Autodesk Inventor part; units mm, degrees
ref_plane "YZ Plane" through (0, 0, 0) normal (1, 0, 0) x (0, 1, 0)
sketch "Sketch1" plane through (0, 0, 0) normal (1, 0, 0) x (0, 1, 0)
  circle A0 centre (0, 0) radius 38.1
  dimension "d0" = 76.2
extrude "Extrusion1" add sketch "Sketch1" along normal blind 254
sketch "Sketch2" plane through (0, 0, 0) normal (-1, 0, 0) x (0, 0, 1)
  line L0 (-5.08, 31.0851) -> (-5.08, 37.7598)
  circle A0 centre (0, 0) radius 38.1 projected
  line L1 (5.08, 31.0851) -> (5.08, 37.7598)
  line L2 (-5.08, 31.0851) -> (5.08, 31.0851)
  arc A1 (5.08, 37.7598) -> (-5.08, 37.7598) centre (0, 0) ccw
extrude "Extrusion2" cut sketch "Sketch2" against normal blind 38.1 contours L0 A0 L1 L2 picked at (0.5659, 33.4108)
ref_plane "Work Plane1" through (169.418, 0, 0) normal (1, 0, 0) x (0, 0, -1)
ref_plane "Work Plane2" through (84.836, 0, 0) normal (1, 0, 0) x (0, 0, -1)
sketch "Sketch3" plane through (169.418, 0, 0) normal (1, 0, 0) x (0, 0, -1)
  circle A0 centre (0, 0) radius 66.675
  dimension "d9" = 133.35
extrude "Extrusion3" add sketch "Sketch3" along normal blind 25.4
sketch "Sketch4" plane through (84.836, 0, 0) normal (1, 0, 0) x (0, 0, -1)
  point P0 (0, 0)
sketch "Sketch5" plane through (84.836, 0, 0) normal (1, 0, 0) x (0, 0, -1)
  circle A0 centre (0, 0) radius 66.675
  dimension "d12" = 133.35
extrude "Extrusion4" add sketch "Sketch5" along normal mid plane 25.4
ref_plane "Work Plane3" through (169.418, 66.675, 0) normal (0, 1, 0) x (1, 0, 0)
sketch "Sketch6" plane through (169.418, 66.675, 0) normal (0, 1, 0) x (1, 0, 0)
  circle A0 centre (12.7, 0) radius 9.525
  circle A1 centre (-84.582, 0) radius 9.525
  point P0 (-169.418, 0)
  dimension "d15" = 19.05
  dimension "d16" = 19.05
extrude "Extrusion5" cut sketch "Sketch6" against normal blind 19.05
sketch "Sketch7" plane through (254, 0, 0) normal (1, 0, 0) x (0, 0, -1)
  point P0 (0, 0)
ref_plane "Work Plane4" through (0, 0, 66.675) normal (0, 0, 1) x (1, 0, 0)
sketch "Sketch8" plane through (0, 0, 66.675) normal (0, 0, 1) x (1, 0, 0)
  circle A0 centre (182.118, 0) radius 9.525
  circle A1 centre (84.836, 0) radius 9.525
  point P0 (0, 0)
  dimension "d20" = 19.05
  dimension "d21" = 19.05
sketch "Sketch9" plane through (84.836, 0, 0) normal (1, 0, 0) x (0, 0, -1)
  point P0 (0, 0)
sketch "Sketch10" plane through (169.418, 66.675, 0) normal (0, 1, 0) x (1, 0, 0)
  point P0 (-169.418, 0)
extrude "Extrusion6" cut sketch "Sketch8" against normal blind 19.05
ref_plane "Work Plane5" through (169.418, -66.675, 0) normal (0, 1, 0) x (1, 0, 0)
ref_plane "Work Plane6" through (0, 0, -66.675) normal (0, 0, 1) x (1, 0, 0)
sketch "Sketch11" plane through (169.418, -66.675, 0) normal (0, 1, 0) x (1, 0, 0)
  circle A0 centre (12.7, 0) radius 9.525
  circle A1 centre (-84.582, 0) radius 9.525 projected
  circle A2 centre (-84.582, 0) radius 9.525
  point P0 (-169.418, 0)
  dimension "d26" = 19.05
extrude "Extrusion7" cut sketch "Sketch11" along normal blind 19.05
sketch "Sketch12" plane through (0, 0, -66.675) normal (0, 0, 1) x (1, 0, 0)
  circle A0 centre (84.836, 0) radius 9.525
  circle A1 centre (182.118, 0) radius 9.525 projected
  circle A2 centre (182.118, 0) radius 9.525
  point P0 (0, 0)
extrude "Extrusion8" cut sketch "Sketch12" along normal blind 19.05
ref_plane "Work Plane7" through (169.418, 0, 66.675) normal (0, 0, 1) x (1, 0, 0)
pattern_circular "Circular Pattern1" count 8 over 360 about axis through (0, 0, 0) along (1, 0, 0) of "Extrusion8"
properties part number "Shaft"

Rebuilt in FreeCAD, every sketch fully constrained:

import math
import FreeCAD as App
import Part
import Sketcher

V = App.Vector
Q = App.Units.Quantity

doc = App.newDocument("Part")
params = doc.addObject("Spreadsheet::Sheet", "Params")
for row, (alias, value) in enumerate([
    ("sketch1_diameter", "3 in"),
    ("pad1_length", "10 in"),
    ("sketch2_radius", "1.5 in"),
    ("sketch2_height", "0.4 in"),
    ("pocket1_length", "1.5 in"),
    ("sketch3_diameter", "5.25 in"),
    ("pad2_length", "1 in"),
    ("sketch4_diameter", "5.25 in"),
    ("pad3_length", "1 in"),
    ("sketch5_diameter", "0.75 in"),
    ("pocket2_length", "0.75 in"),
    ("sketch6_diameter", "0.75 in"),
    ("pocket3_length", "0.75 in"),
    ("sketch7_diameter", "0.75 in"),
    ("pocket4_length", "0.75 in"),
    ("sketch8_diameter", "0.75 in"),
    ("pocket5_length", "0.75 in"),
], start=1):
    params.set(f"A{row}", alias)
    params.set(f"B{row}", "=" + value)
    params.setAlias(f"B{row}", alias)

body = doc.addObject("PartDesign::Body", "Body")

sketch1 = body.newObject("Sketcher::SketchObject", "Sketch")
sketch1.AttachmentSupport = (doc.getObject("YZ_Plane"), [""])
sketch1.MapMode = "FlatFace"
sketch1.addGeometry(Part.Circle(V(0, 0, 0), V(0, 0, 1), 38.1), False)
sketch1.addConstraint([
    Sketcher.Constraint("Coincident", 0, 3, -1, 1),
    Sketcher.Constraint("Diameter", 0, Q("3 in")),
])
sketch1.setExpression("Constraints[1]", "Params.sketch1_diameter")
pad1 = body.newObject("PartDesign::Pad", "Pad")
pad1.Profile = sketch1
pad1.setExpression("Length", "Params.pad1_length")

sketch2 = body.newObject("Sketcher::SketchObject", "Sketch001")
sketch2.AttachmentSupport = (doc.getObject("YZ_Plane"), [""])
sketch2.MapMode = "FlatFace"
sketch2.addGeometry([
    Part.LineSegment(V(37.7598, -5.08, 0), V(31.0851, -5.08, 0)),
    Part.LineSegment(V(31.0851, -5.08, 0), V(31.0851, 5.08, 0)),
    Part.LineSegment(V(31.0851, 5.08, 0), V(37.7598, 5.08, 0)),
    Part.ArcOfCircle(Part.Circle(V(0, 0, 0), V(0, 0, 1), 38.1), math.radians(-7.662259), math.radians(7.662259)),
], False)
sketch2.addConstraint([
    Sketcher.Constraint("Coincident", 0, 2, 1, 1),
    Sketcher.Constraint("Coincident", 1, 2, 2, 1),
    Sketcher.Constraint("Coincident", 2, 2, 3, 2),
    Sketcher.Constraint("Coincident", 3, 1, 0, 1),
    Sketcher.Constraint("Horizontal", 0),
    Sketcher.Constraint("Vertical", 1),
    Sketcher.Constraint("Horizontal", 2),
    Sketcher.Constraint("Coincident", 3, 3, -1, 1),
    Sketcher.Constraint("Vertical", 2, 2, 3, 1),
    Sketcher.Constraint("Radius", 3, Q("1.5 in")),
    Sketcher.Constraint("DistanceY", 1, 1, 1, 2, Q("0.4 in")),
    Sketcher.Constraint("DistanceX", 0, 2, 0, 1, 6.6747),
])
sketch2.setExpression("Constraints[9]", "Params.sketch2_radius")
sketch2.setExpression("Constraints[10]", "Params.sketch2_height")
pocket1 = body.newObject("PartDesign::Pocket", "Pocket")
pocket1.Profile = sketch2
pocket1.setExpression("Length", "Params.pocket1_length")
pocket1.Reversed = True

sketch3 = body.newObject("Sketcher::SketchObject", "Sketch002")
sketch3.AttachmentSupport = (doc.getObject("YZ_Plane"), [""])
sketch3.MapMode = "FlatFace"
sketch3.AttachmentOffset = App.Placement(V(0, 0, 6.67 * 25.4), App.Rotation())
sketch3.addGeometry(Part.Circle(V(0, 0, 0), V(0, 0, 1), 66.675), False)
sketch3.addConstraint([
    Sketcher.Constraint("Coincident", 0, 3, -1, 1),
    Sketcher.Constraint("Diameter", 0, Q("5.25 in")),
])
sketch3.setExpression("Constraints[1]", "Params.sketch3_diameter")
pad2 = body.newObject("PartDesign::Pad", "Pad001")
pad2.Profile = sketch3
pad2.setExpression("Length", "Params.pad2_length")

sketch4 = body.newObject("Sketcher::SketchObject", "Sketch003")
sketch4.AttachmentSupport = (doc.getObject("YZ_Plane"), [""])
sketch4.MapMode = "FlatFace"
sketch4.AttachmentOffset = App.Placement(V(0, 0, 3.34 * 25.4), App.Rotation())
sketch4.addGeometry(Part.Circle(V(0, 0, 0), V(0, 0, 1), 66.675), False)
sketch4.addConstraint([
    Sketcher.Constraint("Coincident", 0, 3, -1, 1),
    Sketcher.Constraint("Diameter", 0, Q("5.25 in")),
])
sketch4.setExpression("Constraints[1]", "Params.sketch4_diameter")
pad3 = body.newObject("PartDesign::Pad", "Pad002")
pad3.Profile = sketch4
pad3.setExpression("Length", "Params.pad3_length")
pad3.Midplane = True

sketch5 = body.newObject("Sketcher::SketchObject", "Sketch004")
sketch5.AttachmentSupport = (doc.getObject("XZ_Plane"), [""])
sketch5.MapMode = "FlatFace"
sketch5.AttachmentOffset = App.Placement(V(0, 0, -2.625 * 25.4), App.Rotation())
sketch5.addGeometry([
    Part.Circle(V(182.118, 0, 0), V(0, 0, 1), 9.525),
    Part.Circle(V(84.836, 0, 0), V(0, 0, 1), 9.525),
], False)
sketch5.addConstraint([
    Sketcher.Constraint("Equal", 0, 1),
    Sketcher.Constraint("PointOnObject", 0, 3, -1),
    Sketcher.Constraint("PointOnObject", 1, 3, -1),
    Sketcher.Constraint("Diameter", 0, Q("0.75 in")),
    Sketcher.Constraint("DistanceX", -1, 1, 0, 3, Q("7.17 in")),
    Sketcher.Constraint("DistanceX", -1, 1, 1, 3, Q("3.34 in")),
])
sketch5.setExpression("Constraints[3]", "Params.sketch5_diameter")
pocket2 = body.newObject("PartDesign::Pocket", "Pocket001")
pocket2.Profile = sketch5
pocket2.setExpression("Length", "Params.pocket2_length")
pocket2.Reversed = True

sketch6 = body.newObject("Sketcher::SketchObject", "Sketch005")
sketch6.AttachmentSupport = (doc.getObject("XY_Plane"), [""])
sketch6.MapMode = "FlatFace"
sketch6.AttachmentOffset = App.Placement(V(0, 0, 2.625 * 25.4), App.Rotation())
sketch6.addGeometry([
    Part.Circle(V(182.118, 0, 0), V(0, 0, 1), 9.525),
    Part.Circle(V(84.836, 0, 0), V(0, 0, 1), 9.525),
], False)
sketch6.addConstraint([
    Sketcher.Constraint("Equal", 0, 1),
    Sketcher.Constraint("PointOnObject", 0, 3, -1),
    Sketcher.Constraint("PointOnObject", 1, 3, -1),
    Sketcher.Constraint("Diameter", 0, Q("0.75 in")),
    Sketcher.Constraint("DistanceX", -1, 1, 0, 3, Q("7.17 in")),
    Sketcher.Constraint("DistanceX", -1, 1, 1, 3, Q("3.34 in")),
])
sketch6.setExpression("Constraints[3]", "Params.sketch6_diameter")
pocket3 = body.newObject("PartDesign::Pocket", "Pocket002")
pocket3.Profile = sketch6
pocket3.setExpression("Length", "Params.pocket3_length")

sketch7 = body.newObject("Sketcher::SketchObject", "Sketch006")
sketch7.AttachmentSupport = (doc.getObject("XZ_Plane"), [""])
sketch7.MapMode = "FlatFace"
sketch7.AttachmentOffset = App.Placement(V(0, 0, 2.625 * 25.4), App.Rotation())
sketch7.addGeometry([
    Part.Circle(V(182.118, 0, 0), V(0, 0, 1), 9.525),
    Part.Circle(V(84.836, 0, 0), V(0, 0, 1), 9.525),
], False)
sketch7.addConstraint([
    Sketcher.Constraint("Equal", 0, 1),
    Sketcher.Constraint("PointOnObject", 0, 3, -1),
    Sketcher.Constraint("PointOnObject", 1, 3, -1),
    Sketcher.Constraint("Diameter", 0, Q("0.75 in")),
    Sketcher.Constraint("DistanceX", -1, 1, 0, 3, Q("7.17 in")),
    Sketcher.Constraint("DistanceX", -1, 1, 1, 3, Q("3.34 in")),
])
sketch7.setExpression("Constraints[3]", "Params.sketch7_diameter")
pocket4 = body.newObject("PartDesign::Pocket", "Pocket003")
pocket4.Profile = sketch7
pocket4.setExpression("Length", "Params.pocket4_length")

sketch8 = body.newObject("Sketcher::SketchObject", "Sketch007")
sketch8.AttachmentSupport = (doc.getObject("XY_Plane"), [""])
sketch8.MapMode = "FlatFace"
sketch8.AttachmentOffset = App.Placement(V(0, 0, -2.625 * 25.4), App.Rotation())
sketch8.addGeometry([
    Part.Circle(V(84.836, 0, 0), V(0, 0, 1), 9.525),
    Part.Circle(V(182.118, 0, 0), V(0, 0, 1), 9.525),
], False)
sketch8.addConstraint([
    Sketcher.Constraint("Equal", 0, 1),
    Sketcher.Constraint("PointOnObject", 0, 3, -1),
    Sketcher.Constraint("PointOnObject", 1, 3, -1),
    Sketcher.Constraint("Diameter", 0, Q("0.75 in")),
    Sketcher.Constraint("DistanceX", -1, 1, 0, 3, Q("3.34 in")),
    Sketcher.Constraint("DistanceX", -1, 1, 1, 3, Q("7.17 in")),
])
sketch8.setExpression("Constraints[3]", "Params.sketch8_diameter")
pocket5 = body.newObject("PartDesign::Pocket", "Pocket004")
pocket5.Profile = sketch8
pocket5.setExpression("Length", "Params.pocket5_length")
pocket5.Reversed = True
doc.recompute()

polarpattern = body.newObject("PartDesign::PolarPattern", "PolarPattern")
polarpattern.Originals = [pocket5]
polarpattern.Axis = (doc.getObject("X_Axis"), [""])
polarpattern.Angle = 360
polarpattern.Occurrences = 8
body.Tip = polarpattern

doc.recompute()
